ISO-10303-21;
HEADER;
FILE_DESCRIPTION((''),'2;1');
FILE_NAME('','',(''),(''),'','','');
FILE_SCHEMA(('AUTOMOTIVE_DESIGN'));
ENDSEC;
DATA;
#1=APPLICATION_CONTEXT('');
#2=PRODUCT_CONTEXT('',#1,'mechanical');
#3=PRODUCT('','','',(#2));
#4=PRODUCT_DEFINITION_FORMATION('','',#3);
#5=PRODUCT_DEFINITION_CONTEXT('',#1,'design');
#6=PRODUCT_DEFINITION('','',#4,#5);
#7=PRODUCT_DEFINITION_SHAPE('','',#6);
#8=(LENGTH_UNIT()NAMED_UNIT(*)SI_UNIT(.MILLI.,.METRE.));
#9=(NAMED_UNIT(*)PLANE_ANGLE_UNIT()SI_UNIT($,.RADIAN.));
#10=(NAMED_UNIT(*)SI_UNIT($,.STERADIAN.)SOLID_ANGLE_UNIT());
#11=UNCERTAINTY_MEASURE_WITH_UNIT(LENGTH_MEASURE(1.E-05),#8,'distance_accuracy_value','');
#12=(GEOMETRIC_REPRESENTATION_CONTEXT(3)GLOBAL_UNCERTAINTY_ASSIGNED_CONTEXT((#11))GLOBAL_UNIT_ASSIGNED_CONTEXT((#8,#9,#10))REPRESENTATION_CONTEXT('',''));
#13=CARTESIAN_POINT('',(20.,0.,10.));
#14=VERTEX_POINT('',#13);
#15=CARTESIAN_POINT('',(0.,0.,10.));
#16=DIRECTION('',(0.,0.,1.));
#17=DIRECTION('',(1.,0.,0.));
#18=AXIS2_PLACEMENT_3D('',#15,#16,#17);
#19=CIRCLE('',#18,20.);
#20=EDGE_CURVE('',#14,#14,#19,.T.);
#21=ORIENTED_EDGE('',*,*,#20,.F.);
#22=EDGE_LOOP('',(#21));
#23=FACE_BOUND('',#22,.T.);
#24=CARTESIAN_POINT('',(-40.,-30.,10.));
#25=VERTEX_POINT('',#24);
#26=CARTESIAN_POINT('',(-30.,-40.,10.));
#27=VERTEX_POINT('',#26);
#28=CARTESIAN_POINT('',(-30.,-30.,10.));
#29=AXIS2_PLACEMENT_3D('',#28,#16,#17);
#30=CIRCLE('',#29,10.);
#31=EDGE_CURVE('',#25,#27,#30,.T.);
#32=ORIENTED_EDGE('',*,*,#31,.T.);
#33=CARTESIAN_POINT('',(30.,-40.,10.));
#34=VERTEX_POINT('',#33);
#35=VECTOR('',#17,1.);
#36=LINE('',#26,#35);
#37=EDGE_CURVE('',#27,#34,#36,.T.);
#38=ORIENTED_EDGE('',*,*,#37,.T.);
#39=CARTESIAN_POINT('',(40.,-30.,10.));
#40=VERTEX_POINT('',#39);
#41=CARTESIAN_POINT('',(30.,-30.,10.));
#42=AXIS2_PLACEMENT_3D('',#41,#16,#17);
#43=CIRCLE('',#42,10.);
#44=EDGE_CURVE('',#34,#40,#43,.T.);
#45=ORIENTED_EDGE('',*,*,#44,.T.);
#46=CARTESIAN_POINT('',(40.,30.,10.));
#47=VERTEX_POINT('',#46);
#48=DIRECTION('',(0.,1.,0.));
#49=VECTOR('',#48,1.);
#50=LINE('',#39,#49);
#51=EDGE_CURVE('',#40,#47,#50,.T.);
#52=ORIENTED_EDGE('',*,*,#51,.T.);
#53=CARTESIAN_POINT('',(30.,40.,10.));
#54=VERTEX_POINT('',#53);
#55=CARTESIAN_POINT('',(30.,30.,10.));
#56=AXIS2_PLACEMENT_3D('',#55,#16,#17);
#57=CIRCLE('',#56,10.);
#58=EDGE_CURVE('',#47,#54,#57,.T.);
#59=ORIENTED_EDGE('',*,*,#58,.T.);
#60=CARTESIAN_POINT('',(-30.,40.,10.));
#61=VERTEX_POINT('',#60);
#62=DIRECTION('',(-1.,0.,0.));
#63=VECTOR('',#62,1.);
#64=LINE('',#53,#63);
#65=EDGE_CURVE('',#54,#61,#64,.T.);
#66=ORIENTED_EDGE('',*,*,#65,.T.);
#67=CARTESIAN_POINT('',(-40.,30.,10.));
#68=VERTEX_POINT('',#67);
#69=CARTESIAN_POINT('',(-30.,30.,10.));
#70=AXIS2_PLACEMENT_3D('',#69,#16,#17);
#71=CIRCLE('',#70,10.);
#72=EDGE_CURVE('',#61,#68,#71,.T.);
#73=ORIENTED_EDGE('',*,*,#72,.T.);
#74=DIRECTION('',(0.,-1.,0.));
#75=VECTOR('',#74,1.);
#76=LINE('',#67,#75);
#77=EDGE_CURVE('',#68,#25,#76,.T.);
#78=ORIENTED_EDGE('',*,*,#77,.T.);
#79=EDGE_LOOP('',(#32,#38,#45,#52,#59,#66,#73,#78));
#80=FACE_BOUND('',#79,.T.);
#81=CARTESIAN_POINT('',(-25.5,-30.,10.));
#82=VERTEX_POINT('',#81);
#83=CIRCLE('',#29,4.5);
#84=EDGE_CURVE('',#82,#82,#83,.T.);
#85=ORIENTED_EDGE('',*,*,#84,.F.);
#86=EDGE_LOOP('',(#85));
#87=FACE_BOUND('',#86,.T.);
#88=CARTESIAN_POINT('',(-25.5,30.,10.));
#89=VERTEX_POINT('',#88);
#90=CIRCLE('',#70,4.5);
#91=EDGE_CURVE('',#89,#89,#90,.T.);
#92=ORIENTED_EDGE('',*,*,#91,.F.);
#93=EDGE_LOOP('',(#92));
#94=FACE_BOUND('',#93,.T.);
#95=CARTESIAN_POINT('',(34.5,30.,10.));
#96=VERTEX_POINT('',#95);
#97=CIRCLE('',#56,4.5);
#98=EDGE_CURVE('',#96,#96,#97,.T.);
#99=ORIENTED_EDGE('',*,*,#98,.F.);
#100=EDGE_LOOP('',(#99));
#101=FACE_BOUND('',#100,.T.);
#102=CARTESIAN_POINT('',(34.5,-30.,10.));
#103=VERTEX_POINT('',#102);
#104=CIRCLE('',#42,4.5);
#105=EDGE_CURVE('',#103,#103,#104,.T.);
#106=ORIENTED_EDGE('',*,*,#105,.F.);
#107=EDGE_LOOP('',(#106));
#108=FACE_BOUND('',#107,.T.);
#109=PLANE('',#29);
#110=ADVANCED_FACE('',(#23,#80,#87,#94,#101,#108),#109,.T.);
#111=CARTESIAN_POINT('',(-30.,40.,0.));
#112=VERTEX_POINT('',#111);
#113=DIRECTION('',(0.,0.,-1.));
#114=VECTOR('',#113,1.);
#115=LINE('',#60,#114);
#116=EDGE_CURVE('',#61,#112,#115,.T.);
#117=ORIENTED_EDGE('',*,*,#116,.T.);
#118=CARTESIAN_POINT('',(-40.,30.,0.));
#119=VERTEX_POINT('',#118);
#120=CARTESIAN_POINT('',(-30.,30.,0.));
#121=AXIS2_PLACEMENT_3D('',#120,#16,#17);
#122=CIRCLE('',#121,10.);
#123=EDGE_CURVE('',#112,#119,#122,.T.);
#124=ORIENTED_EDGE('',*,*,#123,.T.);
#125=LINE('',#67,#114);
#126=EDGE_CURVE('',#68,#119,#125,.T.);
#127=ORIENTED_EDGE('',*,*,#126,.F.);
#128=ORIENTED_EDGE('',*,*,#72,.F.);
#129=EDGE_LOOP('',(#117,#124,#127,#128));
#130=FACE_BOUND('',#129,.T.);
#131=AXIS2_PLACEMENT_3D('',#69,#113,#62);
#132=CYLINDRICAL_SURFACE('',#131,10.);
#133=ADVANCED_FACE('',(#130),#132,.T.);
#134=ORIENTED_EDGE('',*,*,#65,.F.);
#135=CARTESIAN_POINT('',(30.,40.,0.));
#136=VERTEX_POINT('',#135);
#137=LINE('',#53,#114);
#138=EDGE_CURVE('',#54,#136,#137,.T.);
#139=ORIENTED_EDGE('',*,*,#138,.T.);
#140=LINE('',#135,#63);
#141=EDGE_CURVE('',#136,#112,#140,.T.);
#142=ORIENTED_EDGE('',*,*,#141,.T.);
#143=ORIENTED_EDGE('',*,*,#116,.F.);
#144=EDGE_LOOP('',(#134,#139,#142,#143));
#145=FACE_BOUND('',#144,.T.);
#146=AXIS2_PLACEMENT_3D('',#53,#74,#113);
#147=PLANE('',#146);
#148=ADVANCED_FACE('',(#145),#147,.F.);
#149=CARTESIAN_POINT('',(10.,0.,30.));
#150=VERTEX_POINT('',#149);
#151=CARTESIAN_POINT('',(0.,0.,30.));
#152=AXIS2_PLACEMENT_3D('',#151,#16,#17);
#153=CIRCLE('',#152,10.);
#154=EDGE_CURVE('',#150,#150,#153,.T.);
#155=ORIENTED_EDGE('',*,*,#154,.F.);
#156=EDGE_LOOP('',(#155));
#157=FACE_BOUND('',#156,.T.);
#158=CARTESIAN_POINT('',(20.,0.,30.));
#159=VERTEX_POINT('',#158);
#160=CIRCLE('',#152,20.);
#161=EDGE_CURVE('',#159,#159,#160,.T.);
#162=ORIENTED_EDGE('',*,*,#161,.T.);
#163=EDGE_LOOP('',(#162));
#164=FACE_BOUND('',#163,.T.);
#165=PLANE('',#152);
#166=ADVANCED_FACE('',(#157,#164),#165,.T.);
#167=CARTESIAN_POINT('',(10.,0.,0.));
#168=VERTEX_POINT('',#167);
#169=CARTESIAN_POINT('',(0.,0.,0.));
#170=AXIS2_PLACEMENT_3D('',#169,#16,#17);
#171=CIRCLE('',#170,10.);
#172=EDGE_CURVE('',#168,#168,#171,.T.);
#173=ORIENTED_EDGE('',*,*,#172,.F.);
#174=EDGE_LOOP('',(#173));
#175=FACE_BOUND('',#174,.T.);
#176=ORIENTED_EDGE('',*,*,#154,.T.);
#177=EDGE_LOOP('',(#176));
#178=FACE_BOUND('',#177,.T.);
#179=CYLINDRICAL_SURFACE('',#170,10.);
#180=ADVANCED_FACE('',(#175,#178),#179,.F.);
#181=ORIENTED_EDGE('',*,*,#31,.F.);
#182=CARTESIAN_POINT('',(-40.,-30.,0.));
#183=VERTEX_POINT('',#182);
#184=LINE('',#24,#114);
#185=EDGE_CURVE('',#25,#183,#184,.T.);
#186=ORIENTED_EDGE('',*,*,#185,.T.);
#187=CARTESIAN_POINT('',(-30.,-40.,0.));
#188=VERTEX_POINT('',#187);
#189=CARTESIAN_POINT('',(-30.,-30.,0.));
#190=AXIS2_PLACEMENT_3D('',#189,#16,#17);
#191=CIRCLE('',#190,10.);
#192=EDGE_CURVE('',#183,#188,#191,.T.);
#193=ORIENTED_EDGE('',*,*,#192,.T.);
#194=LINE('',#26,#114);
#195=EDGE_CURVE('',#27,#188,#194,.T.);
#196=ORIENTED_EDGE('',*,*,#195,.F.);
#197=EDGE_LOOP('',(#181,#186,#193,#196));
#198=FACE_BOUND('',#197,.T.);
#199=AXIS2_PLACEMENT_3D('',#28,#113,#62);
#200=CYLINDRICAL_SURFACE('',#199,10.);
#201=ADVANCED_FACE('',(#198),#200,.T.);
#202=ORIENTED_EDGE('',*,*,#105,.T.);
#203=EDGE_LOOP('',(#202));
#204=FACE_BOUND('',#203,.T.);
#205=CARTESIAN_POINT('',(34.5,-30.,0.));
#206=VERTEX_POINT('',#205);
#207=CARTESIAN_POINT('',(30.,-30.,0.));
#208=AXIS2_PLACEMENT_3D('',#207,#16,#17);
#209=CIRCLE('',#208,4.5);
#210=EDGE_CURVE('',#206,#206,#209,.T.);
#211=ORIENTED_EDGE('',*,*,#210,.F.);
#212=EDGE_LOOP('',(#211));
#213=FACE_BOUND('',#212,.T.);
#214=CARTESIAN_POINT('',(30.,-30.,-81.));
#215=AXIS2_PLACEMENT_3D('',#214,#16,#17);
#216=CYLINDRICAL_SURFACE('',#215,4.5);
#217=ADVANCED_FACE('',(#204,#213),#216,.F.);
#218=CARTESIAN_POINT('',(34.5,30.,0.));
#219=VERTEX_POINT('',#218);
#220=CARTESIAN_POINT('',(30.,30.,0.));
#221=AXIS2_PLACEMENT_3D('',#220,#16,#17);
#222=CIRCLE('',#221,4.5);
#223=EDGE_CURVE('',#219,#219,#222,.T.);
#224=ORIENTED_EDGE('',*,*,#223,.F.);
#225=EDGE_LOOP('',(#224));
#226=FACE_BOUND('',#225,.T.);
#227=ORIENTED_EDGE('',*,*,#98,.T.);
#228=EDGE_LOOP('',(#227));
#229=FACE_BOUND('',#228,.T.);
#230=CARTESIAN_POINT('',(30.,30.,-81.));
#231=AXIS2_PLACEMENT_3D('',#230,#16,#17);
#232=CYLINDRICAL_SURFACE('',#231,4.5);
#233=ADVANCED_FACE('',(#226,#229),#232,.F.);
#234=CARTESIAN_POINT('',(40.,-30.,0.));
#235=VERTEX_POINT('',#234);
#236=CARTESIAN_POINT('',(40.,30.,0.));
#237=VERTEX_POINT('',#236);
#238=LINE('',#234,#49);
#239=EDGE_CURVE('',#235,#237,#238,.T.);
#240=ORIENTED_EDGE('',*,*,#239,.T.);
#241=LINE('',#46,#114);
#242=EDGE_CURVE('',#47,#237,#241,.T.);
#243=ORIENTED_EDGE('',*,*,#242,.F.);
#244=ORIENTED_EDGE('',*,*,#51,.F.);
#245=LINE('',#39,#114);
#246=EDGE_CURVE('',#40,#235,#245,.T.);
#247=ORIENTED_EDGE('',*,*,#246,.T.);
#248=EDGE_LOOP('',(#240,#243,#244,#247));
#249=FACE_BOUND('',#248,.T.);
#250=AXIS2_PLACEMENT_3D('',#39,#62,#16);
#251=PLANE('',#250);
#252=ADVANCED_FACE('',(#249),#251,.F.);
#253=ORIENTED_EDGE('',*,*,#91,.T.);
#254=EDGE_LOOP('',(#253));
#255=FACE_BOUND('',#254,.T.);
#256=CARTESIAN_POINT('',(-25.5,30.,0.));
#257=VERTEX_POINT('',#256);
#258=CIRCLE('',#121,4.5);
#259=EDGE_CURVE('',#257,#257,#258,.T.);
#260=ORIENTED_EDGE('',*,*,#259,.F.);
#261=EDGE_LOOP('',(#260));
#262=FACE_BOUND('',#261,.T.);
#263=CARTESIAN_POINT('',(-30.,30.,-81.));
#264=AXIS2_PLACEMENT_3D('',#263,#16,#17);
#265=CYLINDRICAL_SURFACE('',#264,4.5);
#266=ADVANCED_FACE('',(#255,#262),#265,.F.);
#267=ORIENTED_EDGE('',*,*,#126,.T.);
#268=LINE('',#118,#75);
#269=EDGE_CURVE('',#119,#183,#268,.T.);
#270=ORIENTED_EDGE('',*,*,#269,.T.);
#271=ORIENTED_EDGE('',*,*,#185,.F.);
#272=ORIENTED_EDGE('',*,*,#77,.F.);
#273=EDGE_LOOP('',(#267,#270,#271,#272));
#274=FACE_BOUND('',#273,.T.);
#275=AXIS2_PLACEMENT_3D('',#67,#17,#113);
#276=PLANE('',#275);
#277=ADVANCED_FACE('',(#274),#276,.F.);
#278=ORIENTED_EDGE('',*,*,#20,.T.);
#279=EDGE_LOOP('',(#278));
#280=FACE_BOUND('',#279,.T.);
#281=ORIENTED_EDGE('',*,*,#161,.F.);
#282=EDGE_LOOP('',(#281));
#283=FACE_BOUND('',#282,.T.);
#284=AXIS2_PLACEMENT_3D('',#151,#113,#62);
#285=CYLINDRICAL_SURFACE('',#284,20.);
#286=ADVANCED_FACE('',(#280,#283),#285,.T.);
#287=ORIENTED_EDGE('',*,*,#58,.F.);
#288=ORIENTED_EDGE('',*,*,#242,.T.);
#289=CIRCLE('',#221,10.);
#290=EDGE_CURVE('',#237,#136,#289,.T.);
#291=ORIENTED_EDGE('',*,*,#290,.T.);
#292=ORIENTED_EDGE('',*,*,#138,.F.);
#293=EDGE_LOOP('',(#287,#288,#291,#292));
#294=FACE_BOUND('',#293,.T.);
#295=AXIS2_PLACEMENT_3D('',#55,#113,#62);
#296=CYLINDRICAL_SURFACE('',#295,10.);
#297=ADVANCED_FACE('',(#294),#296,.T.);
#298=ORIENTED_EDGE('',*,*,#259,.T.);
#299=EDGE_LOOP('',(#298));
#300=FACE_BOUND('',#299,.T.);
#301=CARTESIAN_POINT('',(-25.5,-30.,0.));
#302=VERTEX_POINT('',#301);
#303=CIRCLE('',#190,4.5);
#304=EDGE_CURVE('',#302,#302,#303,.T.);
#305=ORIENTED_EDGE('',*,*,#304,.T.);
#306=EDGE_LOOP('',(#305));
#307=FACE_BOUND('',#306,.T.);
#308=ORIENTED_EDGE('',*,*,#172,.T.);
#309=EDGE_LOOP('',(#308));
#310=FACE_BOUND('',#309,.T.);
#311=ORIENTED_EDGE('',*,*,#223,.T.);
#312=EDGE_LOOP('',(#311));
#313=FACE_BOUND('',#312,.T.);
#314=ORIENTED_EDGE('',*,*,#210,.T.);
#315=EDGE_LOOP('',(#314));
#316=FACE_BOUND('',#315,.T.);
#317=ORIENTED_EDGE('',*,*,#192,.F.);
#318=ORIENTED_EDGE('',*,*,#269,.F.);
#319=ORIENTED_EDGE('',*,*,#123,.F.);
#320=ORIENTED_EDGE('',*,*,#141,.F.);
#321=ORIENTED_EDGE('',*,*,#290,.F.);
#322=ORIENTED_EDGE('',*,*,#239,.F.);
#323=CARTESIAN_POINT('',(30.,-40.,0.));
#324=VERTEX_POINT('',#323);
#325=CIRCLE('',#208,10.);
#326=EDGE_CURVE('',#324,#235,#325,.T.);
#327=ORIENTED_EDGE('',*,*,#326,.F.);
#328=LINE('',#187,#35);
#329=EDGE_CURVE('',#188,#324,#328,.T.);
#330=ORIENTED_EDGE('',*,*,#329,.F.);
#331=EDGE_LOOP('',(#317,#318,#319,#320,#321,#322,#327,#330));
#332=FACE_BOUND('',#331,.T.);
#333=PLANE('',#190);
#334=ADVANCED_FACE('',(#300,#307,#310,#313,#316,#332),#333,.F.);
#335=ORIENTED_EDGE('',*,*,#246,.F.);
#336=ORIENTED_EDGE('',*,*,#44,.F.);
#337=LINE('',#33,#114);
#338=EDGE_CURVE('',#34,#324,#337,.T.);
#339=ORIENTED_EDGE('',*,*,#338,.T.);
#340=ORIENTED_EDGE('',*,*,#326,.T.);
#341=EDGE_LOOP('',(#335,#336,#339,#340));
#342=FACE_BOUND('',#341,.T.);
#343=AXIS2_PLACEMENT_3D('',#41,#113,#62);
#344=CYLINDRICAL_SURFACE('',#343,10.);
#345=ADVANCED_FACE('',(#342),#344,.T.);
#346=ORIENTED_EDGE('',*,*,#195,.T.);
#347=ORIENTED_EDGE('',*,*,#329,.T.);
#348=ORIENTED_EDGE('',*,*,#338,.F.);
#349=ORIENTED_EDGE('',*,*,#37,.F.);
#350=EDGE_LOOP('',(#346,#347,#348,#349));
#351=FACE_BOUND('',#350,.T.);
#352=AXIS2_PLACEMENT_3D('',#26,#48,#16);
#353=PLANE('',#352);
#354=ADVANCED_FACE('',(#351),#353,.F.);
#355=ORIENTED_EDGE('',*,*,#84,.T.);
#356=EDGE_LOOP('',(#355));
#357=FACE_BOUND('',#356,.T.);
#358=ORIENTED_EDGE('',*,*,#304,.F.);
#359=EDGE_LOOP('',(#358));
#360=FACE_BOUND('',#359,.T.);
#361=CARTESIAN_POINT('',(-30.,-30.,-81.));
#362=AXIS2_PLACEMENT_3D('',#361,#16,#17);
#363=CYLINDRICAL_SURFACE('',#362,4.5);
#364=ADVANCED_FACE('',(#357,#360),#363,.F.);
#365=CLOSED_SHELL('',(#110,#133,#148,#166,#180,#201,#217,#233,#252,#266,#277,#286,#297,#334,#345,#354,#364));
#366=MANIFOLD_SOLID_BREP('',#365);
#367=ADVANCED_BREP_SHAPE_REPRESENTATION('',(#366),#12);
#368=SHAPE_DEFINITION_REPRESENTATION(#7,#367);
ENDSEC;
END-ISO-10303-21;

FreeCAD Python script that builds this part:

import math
import FreeCAD as App
import Part
import Sketcher

doc = App.newDocument("Part")
body = doc.addObject("PartDesign::Body", "Body")

sketch1 = doc.addObject("Sketcher::SketchObject", "Sketch")
body.addObject(sketch1)
sketch1.AttachmentSupport = (doc.XY_Plane, [""])
sketch1.MapMode = "FlatFace"
sketch1.addGeometry(Part.LineSegment(App.Vector(-30, -40, 0), App.Vector(30, -40, 0)), False)
sketch1.addGeometry(Part.ArcOfCircle(Part.Circle(App.Vector(30, -30, 0), App.Vector(0, 0, 1), 10), math.radians(-90), math.radians(0)), False)
sketch1.addGeometry(Part.LineSegment(App.Vector(40, -30, 0), App.Vector(40, 30, 0)), False)
sketch1.addGeometry(Part.ArcOfCircle(Part.Circle(App.Vector(30, 30, 0), App.Vector(0, 0, 1), 10), math.radians(0), math.radians(90)), False)
sketch1.addGeometry(Part.LineSegment(App.Vector(30, 40, 0), App.Vector(-30, 40, 0)), False)
sketch1.addGeometry(Part.ArcOfCircle(Part.Circle(App.Vector(-30, 30, 0), App.Vector(0, 0, 1), 10), math.radians(90), math.radians(180)), False)
sketch1.addGeometry(Part.LineSegment(App.Vector(-40, 30, 0), App.Vector(-40, -30, 0)), False)
sketch1.addGeometry(Part.ArcOfCircle(Part.Circle(App.Vector(-30, -30, 0), App.Vector(0, 0, 1), 10), math.radians(180), math.radians(270)), False)
sketch1.addConstraint(Sketcher.Constraint("Tangent", 0, 2, 1, 1))
sketch1.addConstraint(Sketcher.Constraint("Tangent", 1, 2, 2, 1))
sketch1.addConstraint(Sketcher.Constraint("Tangent", 2, 2, 3, 1))
sketch1.addConstraint(Sketcher.Constraint("Tangent", 3, 2, 4, 1))
sketch1.addConstraint(Sketcher.Constraint("Tangent", 4, 2, 5, 1))
sketch1.addConstraint(Sketcher.Constraint("Tangent", 5, 2, 6, 1))
sketch1.addConstraint(Sketcher.Constraint("Tangent", 6, 2, 7, 1))
sketch1.addConstraint(Sketcher.Constraint("Tangent", 7, 2, 0, 1))
sketch1.addConstraint(Sketcher.Constraint("Horizontal", 0))
sketch1.addConstraint(Sketcher.Constraint("Vertical", 2))
sketch1.addConstraint(Sketcher.Constraint("Horizontal", 4))
sketch1.addConstraint(Sketcher.Constraint("Vertical", 6))
sketch1.addConstraint(Sketcher.Constraint("Equal", 1, 3))
sketch1.addConstraint(Sketcher.Constraint("Equal", 3, 5))
sketch1.addConstraint(Sketcher.Constraint("Equal", 5, 7))
sketch1.addConstraint(Sketcher.Constraint("Symmetric", 1, 3, 5, 3, -1, 1))
sketch1.addConstraint(Sketcher.Constraint("Equal", 4, 2))
sketch1.addConstraint(Sketcher.Constraint("Radius", 1, 10.0))
sketch1.addConstraint(Sketcher.Constraint("DistanceX", 0, 1, 0, 2, 60.0))
pad1 = doc.addObject("PartDesign::Pad", "Pad")
body.addObject(pad1)
pad1.Profile = sketch1
pad1.Length = 10

sketch2 = doc.addObject("Sketcher::SketchObject", "Sketch001")
body.addObject(sketch2)
sketch2.AttachmentSupport = (doc.XY_Plane, [""])
sketch2.MapMode = "FlatFace"
sketch2.AttachmentOffset = App.Placement(App.Vector(0, 0, 10), App.Rotation())
sketch2.addGeometry(Part.Circle(App.Vector(0, 0, 0), App.Vector(0, 0, 1), 20), False)
sketch2.addConstraint(Sketcher.Constraint("Coincident", 0, 3, -1, 1))
sketch2.addConstraint(Sketcher.Constraint("Diameter", 0, 40.0))
pad2 = doc.addObject("PartDesign::Pad", "Pad001")
body.addObject(pad2)
pad2.Profile = sketch2
pad2.Length = 20

sketch3 = doc.addObject("Sketcher::SketchObject", "Sketch002")
body.addObject(sketch3)
sketch3.AttachmentSupport = (doc.XY_Plane, [""])
sketch3.MapMode = "FlatFace"
sketch3.addGeometry(Part.Circle(App.Vector(30, 30, 0), App.Vector(0, 0, 1), 4.5), False)
sketch3.addGeometry(Part.Circle(App.Vector(-30, 30, 0), App.Vector(0, 0, 1), 4.5), False)
sketch3.addGeometry(Part.Circle(App.Vector(-30, -30, 0), App.Vector(0, 0, 1), 4.5), False)
sketch3.addGeometry(Part.Circle(App.Vector(30, -30, 0), App.Vector(0, 0, 1), 4.5), False)
sketch3.addConstraint(Sketcher.Constraint("Equal", 0, 1))
sketch3.addConstraint(Sketcher.Constraint("Equal", 1, 2))
sketch3.addConstraint(Sketcher.Constraint("Equal", 2, 3))
sketch3.addConstraint(Sketcher.Constraint("Symmetric", 0, 3, 2, 3, -1, 1))
sketch3.addConstraint(Sketcher.Constraint("Symmetric", 1, 3, 3, 3, -1, 1))
sketch3.addConstraint(Sketcher.Constraint("Symmetric", 0, 3, 1, 3, -2))
sketch3.addConstraint(Sketcher.Constraint("Diameter", 0, 9.0))
sketch3.addConstraint(Sketcher.Constraint("DistanceX", -1, 1, 0, 3, 30.0))
sketch3.addConstraint(Sketcher.Constraint("DistanceY", -1, 1, 0, 3, 30.0))
pocket1 = doc.addObject("PartDesign::Pocket", "Pocket")
body.addObject(pocket1)
pocket1.Profile = sketch3
pocket1.Length = 162
pocket1.Midplane = True

sketch4 = doc.addObject("Sketcher::SketchObject", "Sketch003")
body.addObject(sketch4)
sketch4.AttachmentSupport = (doc.XY_Plane, [""])
sketch4.MapMode = "FlatFace"
sketch4.AttachmentOffset = App.Placement(App.Vector(0, 0, 30), App.Rotation())
sketch4.addGeometry(Part.Circle(App.Vector(0, 0, 0), App.Vector(0, 0, 1), 10), False)
sketch4.addConstraint(Sketcher.Constraint("Coincident", 0, 3, -1, 1))
sketch4.addConstraint(Sketcher.Constraint("Diameter", 0, 20.0))
pocket2 = doc.addObject("PartDesign::Pocket", "Pocket001")
body.addObject(pocket2)
pocket2.Profile = sketch4
pocket2.Type = "ThroughAll"

doc.recompute()
